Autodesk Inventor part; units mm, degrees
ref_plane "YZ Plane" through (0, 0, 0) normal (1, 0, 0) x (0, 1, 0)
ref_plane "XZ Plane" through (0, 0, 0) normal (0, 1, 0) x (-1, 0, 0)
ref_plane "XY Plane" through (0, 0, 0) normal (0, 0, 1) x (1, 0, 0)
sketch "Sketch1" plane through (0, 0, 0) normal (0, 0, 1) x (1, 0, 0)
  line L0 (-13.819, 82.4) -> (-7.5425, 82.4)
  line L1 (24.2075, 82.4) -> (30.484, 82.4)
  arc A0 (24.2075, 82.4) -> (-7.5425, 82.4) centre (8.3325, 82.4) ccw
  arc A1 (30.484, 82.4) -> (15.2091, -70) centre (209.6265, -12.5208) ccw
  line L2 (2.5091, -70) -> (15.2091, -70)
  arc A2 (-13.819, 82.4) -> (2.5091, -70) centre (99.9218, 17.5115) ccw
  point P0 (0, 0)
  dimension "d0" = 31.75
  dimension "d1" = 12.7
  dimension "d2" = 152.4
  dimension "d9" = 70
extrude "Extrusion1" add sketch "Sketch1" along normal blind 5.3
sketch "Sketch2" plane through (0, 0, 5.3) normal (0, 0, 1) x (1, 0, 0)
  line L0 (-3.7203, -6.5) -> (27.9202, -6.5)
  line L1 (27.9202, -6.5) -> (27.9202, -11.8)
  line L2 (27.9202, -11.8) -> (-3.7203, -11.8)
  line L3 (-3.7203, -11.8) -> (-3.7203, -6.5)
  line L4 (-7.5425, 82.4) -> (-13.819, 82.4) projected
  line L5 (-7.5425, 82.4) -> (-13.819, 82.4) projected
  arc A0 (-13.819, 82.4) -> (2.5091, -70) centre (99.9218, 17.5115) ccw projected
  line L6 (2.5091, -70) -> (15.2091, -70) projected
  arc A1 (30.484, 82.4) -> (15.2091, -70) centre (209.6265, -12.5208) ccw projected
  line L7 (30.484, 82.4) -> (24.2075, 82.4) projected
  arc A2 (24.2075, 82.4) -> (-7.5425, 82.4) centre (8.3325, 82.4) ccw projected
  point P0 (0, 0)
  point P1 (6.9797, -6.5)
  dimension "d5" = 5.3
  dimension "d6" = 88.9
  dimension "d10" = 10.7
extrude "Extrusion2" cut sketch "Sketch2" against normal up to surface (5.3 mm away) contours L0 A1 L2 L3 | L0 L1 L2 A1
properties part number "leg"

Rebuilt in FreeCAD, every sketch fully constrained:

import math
import FreeCAD as App
import Part
import Sketcher

V = App.Vector
Q = App.Units.Quantity

doc = App.newDocument("Part")
body = doc.addObject("PartDesign::Body", "Body")

# Sketch on XY plane
sketch1 = body.newObject("Sketcher::SketchObject", "Sketch")
sketch1.AttachmentSupport = (doc.getObject("XY_Plane"), [""])
sketch1.MapMode = "FlatFace"
sketch1.addGeometry([
    Part.LineSegment(V(-8, 82, 0), V(-14, 82, 0)),  # 0
    Part.ArcOfCircle(Part.Circle(V(100, 18, 0), V(0, 0, 1), 131), math.radians(150), math.radians(222)),  # 1
    Part.LineSegment(V(3, -70, 0), V(15, -70, 0)),  # 2
    Part.ArcOfCircle(Part.Circle(V(210, -13, 0), V(0, 0, 1), 203), math.radians(152), math.radians(196)),  # 3
    Part.LineSegment(V(30, 82, 0), V(24, 82, 0)),  # 4
    Part.ArcOfCircle(Part.Circle(V(8, 82, 0), V(0, 0, 1), 16), math.radians(0), math.radians(180)),  # 5
], False)
sketch1.addConstraint([
    Sketcher.Constraint("Coincident", 0, 2, 1, 1),
    Sketcher.Constraint("Coincident", 1, 2, 2, 1),
    Sketcher.Constraint("Coincident", 2, 2, 3, 2),
    Sketcher.Constraint("Coincident", 3, 1, 4, 1),
    Sketcher.Constraint("Coincident", 4, 2, 5, 1),
    Sketcher.Constraint("Coincident", 5, 2, 0, 1),
    Sketcher.Constraint("Horizontal", 0),
    Sketcher.Constraint("Horizontal", 2),
    Sketcher.Constraint("Horizontal", 4),
    Sketcher.Constraint("Horizontal", 5, 3, 0, 2),
    Sketcher.Constraint("Horizontal", 0, 2, 3, 1),
    Sketcher.Constraint("Equal", 0, 4),
    Sketcher.Constraint("DistanceX", 2, 1, 2, 2, Q("0.5 in")),
    Sketcher.Constraint("Radius", 5, Q("0.625 in")),
    Sketcher.Constraint("DistanceY", 1, 2, 5, 3, Q("6 in")),
    Sketcher.Constraint("DistanceY", 1, 2, -1, 1, Q("2.7559 in")),
    Sketcher.Constraint("Radius", 1, 130.9484),
    Sketcher.Constraint("Radius", 3, 202.7363),
    Sketcher.Constraint("DistanceX", 0, 2, 0, 1, Q("0.2471 in")),
    Sketcher.Constraint("DistanceX", -1, 1, 3, 3, Q("8.253 in")),
    Sketcher.Constraint("DistanceX", -1, 1, 1, 3, 99.9218),
])
pad1 = body.newObject("PartDesign::Pad", "Pad")
pad1.Profile = sketch1
pad1.Length = 5.3

# Sketch on XY plane
sketch2 = body.newObject("Sketcher::SketchObject", "Sketch001")
sketch2.AttachmentSupport = (doc.getObject("XY_Plane"), [""])
sketch2.MapMode = "FlatFace"
sketch2.AttachmentOffset = App.Placement(V(0, 0, 5.3), App.Rotation())
sketch2.addGeometry([
    Part.LineSegment(V(-4, -6, 0), V(-4, -12, 0)),
    Part.LineSegment(V(-4, -12, 0), V(28, -12, 0)),
    Part.LineSegment(V(28, -12, 0), V(28, -6, 0)),
    Part.LineSegment(V(28, -6, 0), V(-4, -6, 0)),
], False)
sketch2.addConstraint([
    Sketcher.Constraint("Coincident", 0, 2, 1, 1),
    Sketcher.Constraint("Coincident", 1, 2, 2, 1),
    Sketcher.Constraint("Coincident", 2, 2, 3, 1),
    Sketcher.Constraint("Coincident", 3, 2, 0, 1),
    Sketcher.Constraint("Vertical", 0),
    Sketcher.Constraint("Horizontal", 1),
    Sketcher.Constraint("Vertical", 2),
    Sketcher.Constraint("Horizontal", 3),
    Sketcher.Constraint("DistanceY", 0, 2, 0, 1, 5.3),
    Sketcher.Constraint("DistanceX", 1, 1, 1, 2, Q("1.2457 in")),
    Sketcher.Constraint("DistanceY", 2, 2, -1, 1, Q("0.2559 in")),
    Sketcher.Constraint("DistanceX", 0, 2, -1, 1, 3.7203),
])
pocket1 = body.newObject("PartDesign::Pocket", "Pocket")
pocket1.Profile = sketch2
pocket1.Length = 5.3

doc.recompute()
